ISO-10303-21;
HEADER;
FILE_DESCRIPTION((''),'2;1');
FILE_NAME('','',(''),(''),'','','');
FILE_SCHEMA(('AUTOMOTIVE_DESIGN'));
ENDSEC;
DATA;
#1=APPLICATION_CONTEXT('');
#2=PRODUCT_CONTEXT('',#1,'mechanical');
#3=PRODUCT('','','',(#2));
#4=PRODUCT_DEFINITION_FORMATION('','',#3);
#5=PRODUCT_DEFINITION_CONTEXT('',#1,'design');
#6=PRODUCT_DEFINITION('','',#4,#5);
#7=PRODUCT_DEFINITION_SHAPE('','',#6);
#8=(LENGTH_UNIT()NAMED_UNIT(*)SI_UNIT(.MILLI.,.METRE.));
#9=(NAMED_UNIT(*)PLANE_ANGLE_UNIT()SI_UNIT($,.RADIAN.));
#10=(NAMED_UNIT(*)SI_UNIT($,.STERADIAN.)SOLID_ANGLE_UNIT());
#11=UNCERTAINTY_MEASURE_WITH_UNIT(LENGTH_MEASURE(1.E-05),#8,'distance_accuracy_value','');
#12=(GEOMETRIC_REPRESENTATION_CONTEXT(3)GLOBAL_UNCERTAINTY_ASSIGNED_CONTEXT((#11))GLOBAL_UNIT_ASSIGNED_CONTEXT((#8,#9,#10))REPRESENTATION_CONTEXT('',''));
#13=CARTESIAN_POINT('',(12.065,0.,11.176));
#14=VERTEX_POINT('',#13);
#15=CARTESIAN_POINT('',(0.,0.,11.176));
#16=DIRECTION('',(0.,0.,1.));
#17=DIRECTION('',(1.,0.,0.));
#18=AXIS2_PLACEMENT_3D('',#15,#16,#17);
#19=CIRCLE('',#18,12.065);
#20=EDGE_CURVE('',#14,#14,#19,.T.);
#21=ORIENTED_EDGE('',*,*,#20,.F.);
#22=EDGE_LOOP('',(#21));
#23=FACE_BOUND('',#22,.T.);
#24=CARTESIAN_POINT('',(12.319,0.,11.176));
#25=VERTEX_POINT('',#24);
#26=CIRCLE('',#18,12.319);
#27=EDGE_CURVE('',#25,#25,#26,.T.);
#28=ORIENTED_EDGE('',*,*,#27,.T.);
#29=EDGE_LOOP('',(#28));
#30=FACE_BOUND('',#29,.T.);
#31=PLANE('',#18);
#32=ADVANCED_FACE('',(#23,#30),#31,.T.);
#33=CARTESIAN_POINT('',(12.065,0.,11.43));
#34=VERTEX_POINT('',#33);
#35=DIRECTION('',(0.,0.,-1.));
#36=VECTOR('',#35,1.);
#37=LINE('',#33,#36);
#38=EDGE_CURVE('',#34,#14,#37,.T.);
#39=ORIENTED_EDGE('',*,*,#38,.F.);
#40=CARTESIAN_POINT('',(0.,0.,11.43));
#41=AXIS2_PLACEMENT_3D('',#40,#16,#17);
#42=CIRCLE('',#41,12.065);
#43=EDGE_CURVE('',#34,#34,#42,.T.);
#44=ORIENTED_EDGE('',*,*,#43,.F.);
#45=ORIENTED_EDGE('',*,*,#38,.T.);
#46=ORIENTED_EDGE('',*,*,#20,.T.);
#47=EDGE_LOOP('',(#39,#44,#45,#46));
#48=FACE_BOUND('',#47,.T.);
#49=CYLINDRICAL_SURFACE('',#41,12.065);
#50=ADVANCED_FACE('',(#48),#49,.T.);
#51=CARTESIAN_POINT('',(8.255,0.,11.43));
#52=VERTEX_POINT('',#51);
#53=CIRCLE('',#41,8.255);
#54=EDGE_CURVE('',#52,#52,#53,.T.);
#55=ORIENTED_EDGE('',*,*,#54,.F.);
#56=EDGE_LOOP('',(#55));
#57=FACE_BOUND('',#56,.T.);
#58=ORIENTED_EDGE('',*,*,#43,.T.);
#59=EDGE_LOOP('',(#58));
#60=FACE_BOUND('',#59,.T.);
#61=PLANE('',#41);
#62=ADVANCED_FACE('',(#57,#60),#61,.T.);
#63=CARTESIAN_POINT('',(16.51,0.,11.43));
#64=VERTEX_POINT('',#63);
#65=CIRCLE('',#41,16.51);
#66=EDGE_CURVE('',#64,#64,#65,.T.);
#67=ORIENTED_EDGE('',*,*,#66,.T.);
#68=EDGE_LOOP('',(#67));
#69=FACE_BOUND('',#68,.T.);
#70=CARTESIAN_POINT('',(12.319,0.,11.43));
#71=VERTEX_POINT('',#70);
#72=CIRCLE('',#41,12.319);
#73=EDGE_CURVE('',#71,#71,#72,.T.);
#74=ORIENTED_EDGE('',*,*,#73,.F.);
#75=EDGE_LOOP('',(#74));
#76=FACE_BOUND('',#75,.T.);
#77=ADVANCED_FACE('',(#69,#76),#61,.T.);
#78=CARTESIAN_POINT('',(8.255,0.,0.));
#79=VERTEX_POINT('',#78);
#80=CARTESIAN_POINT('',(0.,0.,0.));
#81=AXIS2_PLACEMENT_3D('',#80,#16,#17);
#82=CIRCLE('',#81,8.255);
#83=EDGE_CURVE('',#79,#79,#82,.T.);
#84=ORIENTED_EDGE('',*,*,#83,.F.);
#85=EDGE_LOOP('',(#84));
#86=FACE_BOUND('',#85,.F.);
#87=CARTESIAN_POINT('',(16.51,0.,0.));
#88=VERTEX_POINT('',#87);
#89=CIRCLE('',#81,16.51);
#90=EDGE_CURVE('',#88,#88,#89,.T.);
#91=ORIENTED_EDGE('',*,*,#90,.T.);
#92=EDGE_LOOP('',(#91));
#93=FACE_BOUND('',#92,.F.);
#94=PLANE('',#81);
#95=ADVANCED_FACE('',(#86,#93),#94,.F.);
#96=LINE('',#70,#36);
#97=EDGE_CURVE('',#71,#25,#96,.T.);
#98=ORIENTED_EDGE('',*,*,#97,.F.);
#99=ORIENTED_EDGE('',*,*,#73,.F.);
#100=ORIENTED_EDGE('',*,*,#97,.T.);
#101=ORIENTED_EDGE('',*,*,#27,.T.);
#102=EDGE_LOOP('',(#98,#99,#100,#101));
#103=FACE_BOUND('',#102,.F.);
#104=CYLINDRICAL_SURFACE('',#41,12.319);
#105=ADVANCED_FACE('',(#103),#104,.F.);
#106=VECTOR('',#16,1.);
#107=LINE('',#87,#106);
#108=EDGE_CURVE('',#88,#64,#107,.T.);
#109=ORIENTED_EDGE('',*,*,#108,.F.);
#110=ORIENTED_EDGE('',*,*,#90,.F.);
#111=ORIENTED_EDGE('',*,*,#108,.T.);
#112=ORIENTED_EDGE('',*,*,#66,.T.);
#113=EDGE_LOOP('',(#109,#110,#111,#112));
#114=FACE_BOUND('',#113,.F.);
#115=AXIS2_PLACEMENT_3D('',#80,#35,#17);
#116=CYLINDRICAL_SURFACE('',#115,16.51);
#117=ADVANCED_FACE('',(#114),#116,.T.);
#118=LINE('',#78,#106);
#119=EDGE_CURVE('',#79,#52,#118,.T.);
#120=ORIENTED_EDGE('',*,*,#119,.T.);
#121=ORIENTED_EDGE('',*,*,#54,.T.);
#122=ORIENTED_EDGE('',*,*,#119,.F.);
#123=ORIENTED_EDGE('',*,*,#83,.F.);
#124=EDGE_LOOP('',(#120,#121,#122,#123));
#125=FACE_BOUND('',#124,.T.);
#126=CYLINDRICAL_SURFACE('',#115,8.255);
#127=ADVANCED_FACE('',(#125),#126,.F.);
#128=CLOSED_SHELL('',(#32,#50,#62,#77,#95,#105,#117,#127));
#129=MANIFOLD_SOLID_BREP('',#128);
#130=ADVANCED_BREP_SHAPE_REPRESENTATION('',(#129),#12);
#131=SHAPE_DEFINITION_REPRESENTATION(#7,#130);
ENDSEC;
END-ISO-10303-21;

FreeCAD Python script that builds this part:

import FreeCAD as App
import Part
import Sketcher
Q = App.Units.Quantity

doc = App.newDocument("Part")
body = doc.addObject("PartDesign::Body", "Body")

# Sketch on XY plane
sketch1 = body.newObject("Sketcher::SketchObject", "Sketch")
sketch1.AttachmentSupport = (doc.getObject("XY_Plane"), [""])
sketch1.MapMode = "FlatFace"
sketch1.addGeometry([
    Part.Circle(App.Vector(0, 0, 0), App.Vector(0, 0, 1), 17),
    Part.Circle(App.Vector(0, 0, 0), App.Vector(0, 0, 1), 8),
], False)
sketch1.addConstraint([
    Sketcher.Constraint("Coincident", 0, 3, -1, 1),
    Sketcher.Constraint("Coincident", 1, 3, -1, 1),
    Sketcher.Constraint("Diameter", 0, Q("1.3 in")),
    Sketcher.Constraint("Diameter", 1, Q("0.65 in")),
])
pad1 = body.newObject("PartDesign::Pad", "Pad")
pad1.Profile = sketch1
pad1.Length = Q("0.45 in")

# Sketch on XY plane
sketch2 = body.newObject("Sketcher::SketchObject", "Sketch001")
sketch2.AttachmentSupport = (doc.getObject("XY_Plane"), [""])
sketch2.MapMode = "FlatFace"
sketch2.AttachmentOffset = App.Placement(App.Vector(0, 0, 0.45 * 25.4), App.Rotation())
sketch2.addGeometry([
    Part.Circle(App.Vector(0, 0, 0), App.Vector(0, 0, 1), 12),
    Part.Circle(App.Vector(0, 0, 0), App.Vector(0, 0, 1), 12),
], False)
sketch2.addConstraint([
    Sketcher.Constraint("Coincident", 0, 3, -1, 1),
    Sketcher.Constraint("Coincident", 1, 3, -1, 1),
    Sketcher.Constraint("Diameter", 0, Q("0.97 in")),
    Sketcher.Constraint("Diameter", 1, Q("0.95 in")),
])
pocket1 = body.newObject("PartDesign::Pocket", "Pocket")
pocket1.Profile = sketch2
pocket1.Length = Q("0.01 in")

doc.recompute()
